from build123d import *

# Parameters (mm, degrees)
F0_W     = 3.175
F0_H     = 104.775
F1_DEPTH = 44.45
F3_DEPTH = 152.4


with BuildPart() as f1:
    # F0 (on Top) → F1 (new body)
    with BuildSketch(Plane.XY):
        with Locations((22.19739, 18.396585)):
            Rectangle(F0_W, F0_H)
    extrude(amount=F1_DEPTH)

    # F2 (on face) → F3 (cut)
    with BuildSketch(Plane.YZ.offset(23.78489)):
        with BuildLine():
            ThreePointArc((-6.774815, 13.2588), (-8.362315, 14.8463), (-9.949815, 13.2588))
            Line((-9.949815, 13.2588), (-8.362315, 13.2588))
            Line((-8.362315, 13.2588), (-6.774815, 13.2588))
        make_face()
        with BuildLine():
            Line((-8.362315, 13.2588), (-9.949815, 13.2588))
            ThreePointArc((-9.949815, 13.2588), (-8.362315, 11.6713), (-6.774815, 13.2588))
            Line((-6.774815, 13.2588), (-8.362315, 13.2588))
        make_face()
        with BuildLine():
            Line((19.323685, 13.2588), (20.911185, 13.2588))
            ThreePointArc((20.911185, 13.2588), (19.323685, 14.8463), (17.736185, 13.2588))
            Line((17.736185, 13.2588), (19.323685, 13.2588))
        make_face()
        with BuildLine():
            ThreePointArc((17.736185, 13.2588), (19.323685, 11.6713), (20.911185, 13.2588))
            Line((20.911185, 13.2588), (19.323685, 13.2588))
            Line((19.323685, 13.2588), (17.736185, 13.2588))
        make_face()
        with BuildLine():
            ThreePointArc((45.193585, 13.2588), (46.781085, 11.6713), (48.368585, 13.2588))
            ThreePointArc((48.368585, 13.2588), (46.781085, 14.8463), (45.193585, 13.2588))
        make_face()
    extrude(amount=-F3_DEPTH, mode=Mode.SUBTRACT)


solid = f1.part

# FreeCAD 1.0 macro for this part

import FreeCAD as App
import Part
import Sketcher

V = App.Vector
Q = App.Units.Quantity


def add_polygon(sketch, points):
    """Adds a closed chain of lines whose ends are joined by coincident constraints."""
    first, n = sketch.GeometryCount, len(points)
    for a, b in zip(points, points[1:] + points[:1]):
        sketch.addGeometry(Part.LineSegment(App.Vector(*a, 0), App.Vector(*b, 0)), False)
    for i in range(n):
        sketch.addConstraint(Sketcher.Constraint("Coincident", first + i, 2, first + (i + 1) % n, 1))

doc = App.newDocument("Part")
body = doc.addObject("PartDesign::Body", "Body")

# Sketch on XY plane
sketch1 = body.newObject("Sketcher::SketchObject", "Sketch")
sketch1.AttachmentSupport = (doc.getObject("XY_Plane"), [""])
sketch1.MapMode = "FlatFace"
add_polygon(sketch1, [(20.6, 70.8), (20.6, -34), (23.8, -34), (23.8, 70.8)])  # lines 0-3
sketch1.addConstraint([
    Sketcher.Constraint("Vertical", 0),
    Sketcher.Constraint("Horizontal", 1),
    Sketcher.Constraint("Vertical", 2),
    Sketcher.Constraint("Horizontal", 3),
    Sketcher.Constraint("DistanceX", 1, 1, 1, 2, Q("0.125 in")),
    Sketcher.Constraint("DistanceY", 0, 2, 0, 1, Q("4.125 in")),
    Sketcher.Constraint("DistanceX", -1, 1, 0, 2, Q("20.60989 mm")),
    Sketcher.Constraint("DistanceY", 0, 2, -1, 1, Q("33.990915 mm")),
])
pad1 = body.newObject("PartDesign::Pad", "Pad")
pad1.Profile = sketch1
pad1.Length = Q("1.75 in")

# Sketch on YZ plane
sketch2 = body.newObject("Sketcher::SketchObject", "Sketch001")
sketch2.AttachmentSupport = (doc.getObject("YZ_Plane"), [""])
sketch2.MapMode = "FlatFace"
sketch2.AttachmentOffset = App.Placement(V(0, 0, 23.78489), App.Rotation())
sketch2.addGeometry([
    Part.Circle(V(-8.4, 13.3, 0), V(0, 0, 1), 1.6),
    Part.Circle(V(19.3, 13.3, 0), V(0, 0, 1), 1.6),
    Part.Circle(V(46.8, 13.3, 0), V(0, 0, 1), 1.6),
], False)
sketch2.addConstraint([
    Sketcher.Constraint("Equal", 0, 1),
    Sketcher.Constraint("Equal", 1, 2),
    Sketcher.Constraint("Horizontal", 0, 3, 1, 3),
    Sketcher.Constraint("Horizontal", 1, 3, 2, 3),
    Sketcher.Constraint("Diameter", 0, Q("0.125 in")),
    Sketcher.Constraint("DistanceX", 0, 3, 1, 3, Q("1.09 in")),
    Sketcher.Constraint("DistanceY", -1, 1, 0, 3, Q("0.522 in")),
    Sketcher.Constraint("DistanceX", 1, 3, 2, 3, Q("1.081 in")),
    Sketcher.Constraint("DistanceX", 0, 3, -1, 1, Q("8.362315 mm")),
])
pocket1 = body.newObject("PartDesign::Pocket", "Pocket")
pocket1.Profile = sketch2
pocket1.Length = Q("6 in")

doc.recompute()
